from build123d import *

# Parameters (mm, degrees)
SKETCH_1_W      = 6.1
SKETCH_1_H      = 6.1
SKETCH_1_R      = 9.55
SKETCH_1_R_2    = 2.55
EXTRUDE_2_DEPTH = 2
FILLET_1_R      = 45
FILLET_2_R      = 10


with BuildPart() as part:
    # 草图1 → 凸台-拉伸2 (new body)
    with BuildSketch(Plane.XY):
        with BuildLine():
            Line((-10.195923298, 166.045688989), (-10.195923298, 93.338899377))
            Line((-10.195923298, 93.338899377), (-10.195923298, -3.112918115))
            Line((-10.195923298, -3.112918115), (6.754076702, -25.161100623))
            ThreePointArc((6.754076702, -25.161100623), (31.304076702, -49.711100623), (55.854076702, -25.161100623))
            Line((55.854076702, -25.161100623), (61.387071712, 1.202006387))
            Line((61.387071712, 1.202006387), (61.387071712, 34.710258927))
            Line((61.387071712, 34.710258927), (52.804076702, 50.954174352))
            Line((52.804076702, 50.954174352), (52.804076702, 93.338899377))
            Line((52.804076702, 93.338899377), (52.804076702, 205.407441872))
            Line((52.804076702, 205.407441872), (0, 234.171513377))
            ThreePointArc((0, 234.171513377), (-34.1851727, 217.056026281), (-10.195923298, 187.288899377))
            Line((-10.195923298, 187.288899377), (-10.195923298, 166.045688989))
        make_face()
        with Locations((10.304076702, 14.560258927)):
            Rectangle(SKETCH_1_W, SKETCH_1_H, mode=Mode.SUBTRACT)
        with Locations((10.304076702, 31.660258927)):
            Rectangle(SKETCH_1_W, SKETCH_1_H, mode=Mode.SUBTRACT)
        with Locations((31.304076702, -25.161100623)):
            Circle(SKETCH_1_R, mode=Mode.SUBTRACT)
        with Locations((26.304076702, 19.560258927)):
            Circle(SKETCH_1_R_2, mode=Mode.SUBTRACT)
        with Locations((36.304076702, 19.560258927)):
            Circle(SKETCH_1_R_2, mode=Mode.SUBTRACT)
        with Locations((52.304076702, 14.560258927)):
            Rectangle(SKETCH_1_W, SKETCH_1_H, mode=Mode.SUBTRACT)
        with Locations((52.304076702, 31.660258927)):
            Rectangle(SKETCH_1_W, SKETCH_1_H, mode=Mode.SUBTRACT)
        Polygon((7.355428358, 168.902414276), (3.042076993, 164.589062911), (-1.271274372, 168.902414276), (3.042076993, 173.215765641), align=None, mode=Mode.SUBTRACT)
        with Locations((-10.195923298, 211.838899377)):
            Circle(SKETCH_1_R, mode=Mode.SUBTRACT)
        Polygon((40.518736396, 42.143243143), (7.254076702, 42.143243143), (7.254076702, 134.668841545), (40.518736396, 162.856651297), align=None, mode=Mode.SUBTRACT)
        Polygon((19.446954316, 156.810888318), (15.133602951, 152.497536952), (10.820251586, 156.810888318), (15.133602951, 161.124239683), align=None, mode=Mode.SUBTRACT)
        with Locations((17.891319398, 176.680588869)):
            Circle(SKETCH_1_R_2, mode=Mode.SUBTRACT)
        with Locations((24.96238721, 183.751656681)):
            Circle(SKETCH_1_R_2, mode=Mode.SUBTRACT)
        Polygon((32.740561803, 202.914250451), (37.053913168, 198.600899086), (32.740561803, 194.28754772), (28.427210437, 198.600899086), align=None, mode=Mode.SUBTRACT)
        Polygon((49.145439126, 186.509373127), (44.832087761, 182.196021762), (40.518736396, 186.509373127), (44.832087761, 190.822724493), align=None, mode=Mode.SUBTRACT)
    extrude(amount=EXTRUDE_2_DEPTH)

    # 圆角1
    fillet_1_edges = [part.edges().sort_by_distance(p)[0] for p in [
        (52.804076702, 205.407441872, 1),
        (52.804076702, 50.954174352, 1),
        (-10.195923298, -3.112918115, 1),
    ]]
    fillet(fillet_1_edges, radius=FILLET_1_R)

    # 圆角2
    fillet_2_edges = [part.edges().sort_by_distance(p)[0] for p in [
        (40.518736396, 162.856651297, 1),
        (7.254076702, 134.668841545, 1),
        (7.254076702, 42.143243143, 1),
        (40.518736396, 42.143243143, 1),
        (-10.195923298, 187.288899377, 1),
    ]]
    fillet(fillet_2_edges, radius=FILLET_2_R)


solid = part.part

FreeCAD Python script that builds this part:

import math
import FreeCAD as App
import Part
import Sketcher
Q = App.Units.Quantity


def edges_at(feature, points):
    """Names of the edges that pass closest to the given points."""
    edges = feature.Shape.Edges
    near = lambda p: min(range(len(edges)), key=lambda i: edges[i].distToShape(Part.Vertex(*p))[0])
    return sorted({f"Edge{near(p) + 1}" for p in points})


def add_polygon(sketch, points):
    """Adds a closed chain of lines whose ends are joined by coincident constraints."""
    first, n = sketch.GeometryCount, len(points)
    for a, b in zip(points, points[1:] + points[:1]):
        sketch.addGeometry(Part.LineSegment(App.Vector(*a, 0), App.Vector(*b, 0)), False)
    for i in range(n):
        sketch.addConstraint(Sketcher.Constraint("Coincident", first + i, 2, first + (i + 1) % n, 1))

doc = App.newDocument("Part")
params = doc.addObject("Spreadsheet::Sheet", "Params")
for row, (alias, value) in enumerate([
    ("sketch1_diameter", "19.1 mm"),
    ("sketch1_diameter2", "5.1 mm"),
    ("sketch1_radius", "24.55 mm"),
    ("sketch1_width", "6.1 mm"),
    ("sketch1_length", "6.1 mm"),
    ("pad1_length", "2 mm"),
    ("fillet_radius", "45 mm"),
    ("fillet2_radius", "10 mm"),
], start=1):
    params.set(f"A{row}", alias)
    params.set(f"B{row}", "=" + value)
    params.setAlias(f"B{row}", alias)

body = doc.addObject("PartDesign::Body", "Body")

# Sketch on XY plane
sketch1 = body.newObject("Sketcher::SketchObject", "Sketch")
sketch1.AttachmentSupport = (doc.getObject("XY_Plane"), [""])
sketch1.MapMode = "FlatFace"
sketch1.addGeometry(Part.LineSegment(App.Vector(-10.195923, -3.112918, 0), App.Vector(6.754077, -25.161101, 0)), False)  # 0
sketch1.addGeometry(Part.ArcOfCircle(Part.Circle(App.Vector(31.304077, -25.161101, 0), App.Vector(0, 0, 1), 24.55), math.radians(180), math.radians(360)), False)  # 1
sketch1.addGeometry(Part.LineSegment(App.Vector(55.854077, -25.161101, 0), App.Vector(61.387072, 1.202006, 0)), False)  # 2
sketch1.addGeometry(Part.LineSegment(App.Vector(61.387072, 1.202006, 0), App.Vector(61.387072, 34.710259, 0)), False)  # 3
sketch1.addGeometry(Part.LineSegment(App.Vector(61.387072, 34.710259, 0), App.Vector(52.804077, 50.954174, 0)), False)  # 4
sketch1.addGeometry(Part.LineSegment(App.Vector(52.804077, 50.954174, 0), App.Vector(52.804077, 205.407442, 0)), False)  # 5
sketch1.addGeometry(Part.LineSegment(App.Vector(52.804077, 205.407442, 0), App.Vector(0, 234.171513, 0)), False)  # 6
sketch1.addGeometry(Part.ArcOfCircle(Part.Circle(App.Vector(-10.195923, 211.838899, 0), App.Vector(0, 0, 1), 24.55), math.radians(65.460999), math.radians(270)), False)  # 7
sketch1.addGeometry(Part.LineSegment(App.Vector(-10.195923, 187.288899, 0), App.Vector(-10.195923, -3.112918, 0)), False)  # 8
add_polygon(sketch1, [(13.354077, 11.510259), (7.254077, 11.510259), (7.254077, 17.610259), (13.354077, 17.610259)])  # lines 9-12
add_polygon(sketch1, [(13.354077, 28.610259), (7.254077, 28.610259), (7.254077, 34.710259), (13.354077, 34.710259)])  # lines 13-16
sketch1.addGeometry(Part.Circle(App.Vector(31.304077, -25.161101, 0), App.Vector(0, 0, 1), 9.55), False)  # 17
sketch1.addGeometry(Part.Circle(App.Vector(26.304077, 19.560259, 0), App.Vector(0, 0, 1), 2.55), False)  # 18
sketch1.addGeometry(Part.Circle(App.Vector(36.304077, 19.560259, 0), App.Vector(0, 0, 1), 2.55), False)  # 19
add_polygon(sketch1, [(55.354077, 11.510259), (49.254077, 11.510259), (49.254077, 17.610259), (55.354077, 17.610259)])  # lines 20-23
add_polygon(sketch1, [(55.354077, 28.610259), (49.254077, 28.610259), (49.254077, 34.710259), (55.354077, 34.710259)])  # lines 24-27
add_polygon(sketch1, [(15.133603, 161.12424), (19.446954, 156.810888), (15.133603, 152.497537), (10.820252, 156.810888)])  # lines 28-31
sketch1.addGeometry(Part.Circle(App.Vector(-10.195923, 211.838899, 0), App.Vector(0, 0, 1), 9.55), False)  # 32
add_polygon(sketch1, [(3.042077, 173.215766), (7.355428, 168.902414), (3.042077, 164.589063), (-1.271274, 168.902414)])  # lines 33-36
add_polygon(sketch1, [(40.518736, 162.856651), (40.518736, 42.143243), (7.254077, 42.143243), (7.254077, 134.668842)])  # lines 37-40
sketch1.addGeometry(Part.Circle(App.Vector(17.891319, 176.680589, 0), App.Vector(0, 0, 1), 2.55), False)  # 41
sketch1.addGeometry(Part.Circle(App.Vector(24.962387, 183.751657, 0), App.Vector(0, 0, 1), 2.55), False)  # 42
add_polygon(sketch1, [(28.42721, 198.600899), (32.740562, 202.91425), (37.053913, 198.600899), (32.740562, 194.287548)])  # lines 43-46
add_polygon(sketch1, [(44.832088, 190.822724), (49.145439, 186.509373), (44.832088, 182.196022), (40.518736, 186.509373)])  # lines 47-50
sketch1.addConstraint(Sketcher.Constraint("Coincident", 0, 2, 1, 1))
sketch1.addConstraint(Sketcher.Constraint("Coincident", 1, 2, 2, 1))
sketch1.addConstraint(Sketcher.Constraint("Coincident", 2, 2, 3, 1))
sketch1.addConstraint(Sketcher.Constraint("Coincident", 3, 2, 4, 1))
sketch1.addConstraint(Sketcher.Constraint("Coincident", 4, 2, 5, 1))
sketch1.addConstraint(Sketcher.Constraint("Coincident", 5, 2, 6, 1))
sketch1.addConstraint(Sketcher.Constraint("Coincident", 6, 2, 7, 1))
sketch1.addConstraint(Sketcher.Constraint("Coincident", 7, 2, 8, 1))
sketch1.addConstraint(Sketcher.Constraint("Coincident", 8, 2, 0, 1))
sketch1.addConstraint(Sketcher.Constraint("Vertical", 3))
sketch1.addConstraint(Sketcher.Constraint("Vertical", 5))
sketch1.addConstraint(Sketcher.Constraint("Vertical", 8))
sketch1.addConstraint(Sketcher.Constraint("Horizontal", 9))
sketch1.addConstraint(Sketcher.Constraint("Vertical", 10))
sketch1.addConstraint(Sketcher.Constraint("Horizontal", 11))
sketch1.addConstraint(Sketcher.Constraint("Vertical", 12))
sketch1.addConstraint(Sketcher.Constraint("Horizontal", 13))
sketch1.addConstraint(Sketcher.Constraint("Vertical", 14))
sketch1.addConstraint(Sketcher.Constraint("Horizontal", 15))
sketch1.addConstraint(Sketcher.Constraint("Vertical", 16))
sketch1.addConstraint(Sketcher.Constraint("Horizontal", 20))
sketch1.addConstraint(Sketcher.Constraint("Vertical", 21))
sketch1.addConstraint(Sketcher.Constraint("Horizontal", 22))
sketch1.addConstraint(Sketcher.Constraint("Vertical", 23))
sketch1.addConstraint(Sketcher.Constraint("Horizontal", 24))
sketch1.addConstraint(Sketcher.Constraint("Vertical", 25))
sketch1.addConstraint(Sketcher.Constraint("Horizontal", 26))
sketch1.addConstraint(Sketcher.Constraint("Vertical", 27))
sketch1.addConstraint(Sketcher.Constraint("Vertical", 37))
sketch1.addConstraint(Sketcher.Constraint("Horizontal", 38))
sketch1.addConstraint(Sketcher.Constraint("Vertical", 39))
sketch1.addConstraint(Sketcher.Constraint("Coincident", 17, 3, 1, 3))
sketch1.addConstraint(Sketcher.Constraint("Coincident", 32, 3, 7, 3))
sketch1.addConstraint(Sketcher.Constraint("Equal", 1, 7))
sketch1.addConstraint(Sketcher.Constraint("Equal", 18, 19))
sketch1.addConstraint(Sketcher.Constraint("Equal", 17, 32))
sketch1.addConstraint(Sketcher.Constraint("Equal", 19, 41))
sketch1.addConstraint(Sketcher.Constraint("Equal", 41, 42))
sketch1.addConstraint(Sketcher.Constraint("PointOnObject", 6, 2, -2))
sketch1.addConstraint(Sketcher.Constraint("Perpendicular", 28, 29))
sketch1.addConstraint(Sketcher.Constraint("Perpendicular", 29, 30))
sketch1.addConstraint(Sketcher.Constraint("Perpendicular", 30, 31))
sketch1.addConstraint(Sketcher.Constraint("Perpendicular", 31, 33))
sketch1.addConstraint(Sketcher.Constraint("Perpendicular", 33, 34))
sketch1.addConstraint(Sketcher.Constraint("Perpendicular", 34, 35))
sketch1.addConstraint(Sketcher.Constraint("Perpendicular", 35, 36))
sketch1.addConstraint(Sketcher.Constraint("Parallel", 36, 43))
sketch1.addConstraint(Sketcher.Constraint("Perpendicular", 43, 44))
sketch1.addConstraint(Sketcher.Constraint("Perpendicular", 44, 45))
sketch1.addConstraint(Sketcher.Constraint("Perpendicular", 45, 46))
sketch1.addConstraint(Sketcher.Constraint("Parallel", 46, 47))
sketch1.addConstraint(Sketcher.Constraint("Perpendicular", 47, 48))
sketch1.addConstraint(Sketcher.Constraint("Perpendicular", 48, 49))
sketch1.addConstraint(Sketcher.Constraint("Perpendicular", 49, 50))
sketch1.addConstraint(Sketcher.Constraint("Horizontal", 18, 3, 19, 3))
sketch1.addConstraint(Sketcher.Constraint("Horizontal", 17, 3, 0, 2))
sketch1.addConstraint(Sketcher.Constraint("Horizontal", 0, 2, 1, 2))
sketch1.addConstraint(Sketcher.Constraint("Horizontal", 3, 2, 14, 2))
sketch1.addConstraint(Sketcher.Constraint("Horizontal", 12, 2, 20, 2))
sketch1.addConstraint(Sketcher.Constraint("Horizontal", 11, 2, 21, 2))
sketch1.addConstraint(Sketcher.Constraint("Horizontal", 16, 2, 24, 2))
sketch1.addConstraint(Sketcher.Constraint("Horizontal", 15, 2, 25, 2))
sketch1.addConstraint(Sketcher.Constraint("Horizontal", 28, 2, 30, 2))
sketch1.addConstraint(Sketcher.Constraint("Horizontal", 33, 2, 35, 2))
sketch1.addConstraint(Sketcher.Constraint("Horizontal", 44, 2, 46, 2))
sketch1.addConstraint(Sketcher.Constraint("Horizontal", 47, 2, 49, 2))
sketch1.addConstraint(Sketcher.Constraint("Vertical", 32, 3, 7, 2))
sketch1.addConstraint(Sketcher.Constraint("Vertical", 10, 2, 13, 2))
sketch1.addConstraint(Sketcher.Constraint("Vertical", 12, 2, 15, 2))
sketch1.addConstraint(Sketcher.Constraint("Vertical", 21, 2, 24, 2))
sketch1.addConstraint(Sketcher.Constraint("Vertical", 23, 2, 26, 2))
sketch1.addConstraint(Sketcher.Constraint("Vertical", 29, 2, 31, 2))
sketch1.addConstraint(Sketcher.Constraint("Vertical", 14, 2, 38, 2))
sketch1.addConstraint(Sketcher.Constraint("Vertical", 40, 2, 49, 2))
sketch1.addConstraint(Sketcher.Constraint("Equal", 15, 20))
sketch1.addConstraint(Sketcher.Constraint("Equal", 26, 10))
sketch1.addConstraint(Sketcher.Constraint("Equal", 12, 14))
sketch1.addConstraint(Sketcher.Constraint("Equal", 31, 33))
sketch1.addConstraint(Sketcher.Constraint("Equal", 36, 43))
sketch1.addConstraint(Sketcher.Constraint("Equal", 46, 47))
sketch1.addConstraint(Sketcher.Constraint("Diameter", 17, Q("19.1 mm")))
sketch1.addConstraint(Sketcher.Constraint("Diameter", 18, Q("5.1 mm")))
sketch1.addConstraint(Sketcher.Constraint("Radius", 1, Q("24.55 mm")))
sketch1.addConstraint(Sketcher.Constraint("DistanceX", 9, 2, 9, 1, Q("6.1 mm")))
sketch1.addConstraint(Sketcher.Constraint("DistanceY", 1, 3, 7, 3, Q("237 mm")))
sketch1.addConstraint(Sketcher.Constraint("DistanceX", 18, 3, 1, 3, Q("5 mm")))
sketch1.addConstraint(Sketcher.Constraint("DistanceX", 18, 3, 19, 3, Q("10 mm")))
sketch1.addConstraint(Sketcher.Constraint("DistanceX", 7, 3, 5, 2, Q("63 mm")))
sketch1.addConstraint(Sketcher.Constraint("DistanceY", 10, 2, 13, 2, Q("11 mm")))
sketch1.addConstraint(Sketcher.Constraint("Distance", 28, Q("6.1 mm")))
sketch1.addConstraint(Sketcher.Constraint("DistanceX", 7, 3, 1, 3, Q("41.5 mm")))
sketch1.addConstraint(Sketcher.Constraint("DistanceX", 0, 2, 9, 2, Q("0.5 mm")))
sketch1.addConstraint(Sketcher.Constraint("DistanceX", 12, 2, 20, 2, Q("35.9 mm")))
sketch1.addConstraint(Sketcher.Constraint("DistanceY", 19, 3, 3, 2, Q("15.15 mm")))
sketch1.addConstraint(Sketcher.Constraint("DistanceY", 39, 1, 39, 2, Q("92.525598 mm")))
sketch1.addConstraint(Sketcher.Constraint("DistanceX", 34, 2, 39, 2, Q("4.212 mm")))
sketch1.addConstraint(Sketcher.Constraint("DistanceX", 38, 2, 38, 1, Q("33.26466 mm")))
sketch1.addConstraint(Sketcher.Constraint("DistanceY", 37, 2, 37, 1, Q("120.713408 mm")))
sketch1.addConstraint(Sketcher.Constraint("DistanceY", 1, 3, -1, 1, Q("25.161101 mm")))
sketch1.addConstraint(Sketcher.Constraint("DistanceY", -1, 1, 44, 2, Q("198.600899 mm")))
sketch1.addConstraint(Sketcher.Constraint("DistanceY", 28, 2, 41, 3, Q("19.869701 mm")))
sketch1.addConstraint(Sketcher.Constraint("DistanceY", 39, 2, 31, 2, Q("26.455398 mm")))
sketch1.addConstraint(Sketcher.Constraint("DistanceY", 40, 2, 43, 2, Q("40.057599 mm")))
sketch1.addConstraint(Sketcher.Constraint("DistanceX", 42, 3, 48, 2, Q("19.869701 mm")))
sketch1.addConstraint(Sketcher.Constraint("Distance", 4, Q("18.37206 mm")))
sketch1.addConstraint(Sketcher.Constraint("Distance", 6, Q("60.130211 mm")))
sketch1.addConstraint(Sketcher.Constraint("DistanceY", 3, 1, 3, 2, Q("33.508253 mm")))
sketch1.addConstraint(Sketcher.Constraint("DistanceY", 5, 1, 5, 2, Q("154.453268 mm")))
sketch1.addConstraint(Sketcher.Constraint("DistanceY", 8, 2, 8, 1, Q("190.401817 mm")))
sketch1.addConstraint(Sketcher.Constraint("DistanceY", -1, 1, 18, 3, Q("19.560259 mm")))
sketch1.addConstraint(Sketcher.Constraint("DistanceX", -1, 1, 41, 3, Q("17.891319 mm")))
sketch1.addConstraint(Sketcher.Constraint("DistanceX", -1, 1, 2, 2, Q("61.387072 mm")))
sketch1.addConstraint(Sketcher.Constraint("DistanceX", -1, 1, 30, 2, Q("10.820252 mm")))
sketch1.addConstraint(Sketcher.Constraint("DistanceX", -1, 1, 43, 2, Q("32.740562 mm")))
sketch1.addConstraint(Sketcher.Constraint("DistanceY", -1, 1, 48, 2, Q("182.196022 mm")))
sketch1.addConstraint(Sketcher.Constraint("DistanceY", 28, 2, 42, 3, Q("26.940768 mm")))
sketch1.addConstraint(Sketcher.Constraint("DistanceY", 39, 2, 34, 2, Q("29.920221 mm")))
sketch1.setExpression("Constraints[116]", "Params.sketch1_diameter")
sketch1.setExpression("Constraints[117]", "Params.sketch1_diameter2")
sketch1.setExpression("Constraints[118]", "Params.sketch1_radius")
sketch1.setExpression("Constraints[119]", "Params.sketch1_width")
sketch1.setExpression("Constraints[125]", "Params.sketch1_length")
pad1 = body.newObject("PartDesign::Pad", "Pad")
pad1.Profile = sketch1
pad1.setExpression("Length", "Params.pad1_length")
doc.recompute()

fillet = body.newObject("PartDesign::Fillet", "Fillet")
fillet.Base = (pad1, edges_at(pad1, [(52.804, 205.407, 1), (52.804, 50.954, 1), (-10.196, -3.113, 1)]))
fillet.setExpression("Radius", "Params.fillet_radius")
doc.recompute()

fillet2 = body.newObject("PartDesign::Fillet", "Fillet001")
fillet2.Base = (fillet, edges_at(fillet, [
    (40.519, 162.857, 1),
    (7.254, 134.669, 1),
    (7.254, 42.143, 1),
    (40.519, 42.143, 1),
    (-10.196, 187.289, 1),
]))
fillet2.setExpression("Radius", "Params.fillet2_radius")

doc.recompute()
